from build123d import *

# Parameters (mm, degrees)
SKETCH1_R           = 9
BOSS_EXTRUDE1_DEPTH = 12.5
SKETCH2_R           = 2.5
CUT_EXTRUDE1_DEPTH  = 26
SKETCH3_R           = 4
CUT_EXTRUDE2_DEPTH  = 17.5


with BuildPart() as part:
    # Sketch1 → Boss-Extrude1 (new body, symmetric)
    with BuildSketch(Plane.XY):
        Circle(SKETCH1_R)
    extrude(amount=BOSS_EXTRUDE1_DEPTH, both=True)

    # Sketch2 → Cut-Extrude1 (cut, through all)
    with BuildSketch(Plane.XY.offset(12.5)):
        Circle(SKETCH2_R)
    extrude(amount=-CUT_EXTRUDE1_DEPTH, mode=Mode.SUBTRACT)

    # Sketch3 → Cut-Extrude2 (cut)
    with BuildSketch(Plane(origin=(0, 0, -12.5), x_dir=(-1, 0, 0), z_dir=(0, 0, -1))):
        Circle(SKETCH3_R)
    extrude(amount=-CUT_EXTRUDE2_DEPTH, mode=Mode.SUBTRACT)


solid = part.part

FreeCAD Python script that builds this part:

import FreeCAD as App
import Part
import Sketcher
from FreeCAD import Vector

doc = App.newDocument("Part")
body = doc.addObject("PartDesign::Body", "Body")

# Sketch on XY plane
sketch1 = body.newObject("Sketcher::SketchObject", "Sketch")
sketch1.AttachmentSupport = (doc.getObject("XY_Plane"), [""])
sketch1.MapMode = "FlatFace"
sketch1.addGeometry(Part.Circle(Vector(0, 0, 0), Vector(0, 0, 1), 9), False)
sketch1.addConstraint(Sketcher.Constraint("Coincident", 0, 3, -1, 1))
sketch1.addConstraint(Sketcher.Constraint("Diameter", 0, 18.0))
pad1 = body.newObject("PartDesign::Pad", "Pad")
pad1.Profile = sketch1
pad1.Length = 25
pad1.Midplane = True

# Sketch on XY plane
sketch2 = body.newObject("Sketcher::SketchObject", "Sketch001")
sketch2.AttachmentSupport = (doc.getObject("XY_Plane"), [""])
sketch2.MapMode = "FlatFace"
sketch2.AttachmentOffset = App.Placement(Vector(0, 0, 12.5), App.Rotation())
sketch2.addGeometry(Part.Circle(Vector(0, 0, 0), Vector(0, 0, 1), 2.5), False)
sketch2.addConstraint(Sketcher.Constraint("Coincident", 0, 3, -1, 1))
sketch2.addConstraint(Sketcher.Constraint("Diameter", 0, 5.0))
pocket1 = body.newObject("PartDesign::Pocket", "Pocket")
pocket1.Profile = sketch2
pocket1.Type = "ThroughAll"

# Sketch on XY plane
sketch3 = body.newObject("Sketcher::SketchObject", "Sketch002")
sketch3.AttachmentSupport = (doc.getObject("XY_Plane"), [""])
sketch3.MapMode = "FlatFace"
sketch3.AttachmentOffset = App.Placement(Vector(0, 0, -12.5), App.Rotation())
sketch3.addGeometry(Part.Circle(Vector(0, 0, 0), Vector(0, 0, 1), 4), False)
sketch3.addConstraint(Sketcher.Constraint("Coincident", 0, 3, -1, 1))
sketch3.addConstraint(Sketcher.Constraint("Diameter", 0, 8.0))
pocket2 = body.newObject("PartDesign::Pocket", "Pocket001")
pocket2.Profile = sketch3
pocket2.Length = 17.5
pocket2.Reversed = True

doc.recompute()
